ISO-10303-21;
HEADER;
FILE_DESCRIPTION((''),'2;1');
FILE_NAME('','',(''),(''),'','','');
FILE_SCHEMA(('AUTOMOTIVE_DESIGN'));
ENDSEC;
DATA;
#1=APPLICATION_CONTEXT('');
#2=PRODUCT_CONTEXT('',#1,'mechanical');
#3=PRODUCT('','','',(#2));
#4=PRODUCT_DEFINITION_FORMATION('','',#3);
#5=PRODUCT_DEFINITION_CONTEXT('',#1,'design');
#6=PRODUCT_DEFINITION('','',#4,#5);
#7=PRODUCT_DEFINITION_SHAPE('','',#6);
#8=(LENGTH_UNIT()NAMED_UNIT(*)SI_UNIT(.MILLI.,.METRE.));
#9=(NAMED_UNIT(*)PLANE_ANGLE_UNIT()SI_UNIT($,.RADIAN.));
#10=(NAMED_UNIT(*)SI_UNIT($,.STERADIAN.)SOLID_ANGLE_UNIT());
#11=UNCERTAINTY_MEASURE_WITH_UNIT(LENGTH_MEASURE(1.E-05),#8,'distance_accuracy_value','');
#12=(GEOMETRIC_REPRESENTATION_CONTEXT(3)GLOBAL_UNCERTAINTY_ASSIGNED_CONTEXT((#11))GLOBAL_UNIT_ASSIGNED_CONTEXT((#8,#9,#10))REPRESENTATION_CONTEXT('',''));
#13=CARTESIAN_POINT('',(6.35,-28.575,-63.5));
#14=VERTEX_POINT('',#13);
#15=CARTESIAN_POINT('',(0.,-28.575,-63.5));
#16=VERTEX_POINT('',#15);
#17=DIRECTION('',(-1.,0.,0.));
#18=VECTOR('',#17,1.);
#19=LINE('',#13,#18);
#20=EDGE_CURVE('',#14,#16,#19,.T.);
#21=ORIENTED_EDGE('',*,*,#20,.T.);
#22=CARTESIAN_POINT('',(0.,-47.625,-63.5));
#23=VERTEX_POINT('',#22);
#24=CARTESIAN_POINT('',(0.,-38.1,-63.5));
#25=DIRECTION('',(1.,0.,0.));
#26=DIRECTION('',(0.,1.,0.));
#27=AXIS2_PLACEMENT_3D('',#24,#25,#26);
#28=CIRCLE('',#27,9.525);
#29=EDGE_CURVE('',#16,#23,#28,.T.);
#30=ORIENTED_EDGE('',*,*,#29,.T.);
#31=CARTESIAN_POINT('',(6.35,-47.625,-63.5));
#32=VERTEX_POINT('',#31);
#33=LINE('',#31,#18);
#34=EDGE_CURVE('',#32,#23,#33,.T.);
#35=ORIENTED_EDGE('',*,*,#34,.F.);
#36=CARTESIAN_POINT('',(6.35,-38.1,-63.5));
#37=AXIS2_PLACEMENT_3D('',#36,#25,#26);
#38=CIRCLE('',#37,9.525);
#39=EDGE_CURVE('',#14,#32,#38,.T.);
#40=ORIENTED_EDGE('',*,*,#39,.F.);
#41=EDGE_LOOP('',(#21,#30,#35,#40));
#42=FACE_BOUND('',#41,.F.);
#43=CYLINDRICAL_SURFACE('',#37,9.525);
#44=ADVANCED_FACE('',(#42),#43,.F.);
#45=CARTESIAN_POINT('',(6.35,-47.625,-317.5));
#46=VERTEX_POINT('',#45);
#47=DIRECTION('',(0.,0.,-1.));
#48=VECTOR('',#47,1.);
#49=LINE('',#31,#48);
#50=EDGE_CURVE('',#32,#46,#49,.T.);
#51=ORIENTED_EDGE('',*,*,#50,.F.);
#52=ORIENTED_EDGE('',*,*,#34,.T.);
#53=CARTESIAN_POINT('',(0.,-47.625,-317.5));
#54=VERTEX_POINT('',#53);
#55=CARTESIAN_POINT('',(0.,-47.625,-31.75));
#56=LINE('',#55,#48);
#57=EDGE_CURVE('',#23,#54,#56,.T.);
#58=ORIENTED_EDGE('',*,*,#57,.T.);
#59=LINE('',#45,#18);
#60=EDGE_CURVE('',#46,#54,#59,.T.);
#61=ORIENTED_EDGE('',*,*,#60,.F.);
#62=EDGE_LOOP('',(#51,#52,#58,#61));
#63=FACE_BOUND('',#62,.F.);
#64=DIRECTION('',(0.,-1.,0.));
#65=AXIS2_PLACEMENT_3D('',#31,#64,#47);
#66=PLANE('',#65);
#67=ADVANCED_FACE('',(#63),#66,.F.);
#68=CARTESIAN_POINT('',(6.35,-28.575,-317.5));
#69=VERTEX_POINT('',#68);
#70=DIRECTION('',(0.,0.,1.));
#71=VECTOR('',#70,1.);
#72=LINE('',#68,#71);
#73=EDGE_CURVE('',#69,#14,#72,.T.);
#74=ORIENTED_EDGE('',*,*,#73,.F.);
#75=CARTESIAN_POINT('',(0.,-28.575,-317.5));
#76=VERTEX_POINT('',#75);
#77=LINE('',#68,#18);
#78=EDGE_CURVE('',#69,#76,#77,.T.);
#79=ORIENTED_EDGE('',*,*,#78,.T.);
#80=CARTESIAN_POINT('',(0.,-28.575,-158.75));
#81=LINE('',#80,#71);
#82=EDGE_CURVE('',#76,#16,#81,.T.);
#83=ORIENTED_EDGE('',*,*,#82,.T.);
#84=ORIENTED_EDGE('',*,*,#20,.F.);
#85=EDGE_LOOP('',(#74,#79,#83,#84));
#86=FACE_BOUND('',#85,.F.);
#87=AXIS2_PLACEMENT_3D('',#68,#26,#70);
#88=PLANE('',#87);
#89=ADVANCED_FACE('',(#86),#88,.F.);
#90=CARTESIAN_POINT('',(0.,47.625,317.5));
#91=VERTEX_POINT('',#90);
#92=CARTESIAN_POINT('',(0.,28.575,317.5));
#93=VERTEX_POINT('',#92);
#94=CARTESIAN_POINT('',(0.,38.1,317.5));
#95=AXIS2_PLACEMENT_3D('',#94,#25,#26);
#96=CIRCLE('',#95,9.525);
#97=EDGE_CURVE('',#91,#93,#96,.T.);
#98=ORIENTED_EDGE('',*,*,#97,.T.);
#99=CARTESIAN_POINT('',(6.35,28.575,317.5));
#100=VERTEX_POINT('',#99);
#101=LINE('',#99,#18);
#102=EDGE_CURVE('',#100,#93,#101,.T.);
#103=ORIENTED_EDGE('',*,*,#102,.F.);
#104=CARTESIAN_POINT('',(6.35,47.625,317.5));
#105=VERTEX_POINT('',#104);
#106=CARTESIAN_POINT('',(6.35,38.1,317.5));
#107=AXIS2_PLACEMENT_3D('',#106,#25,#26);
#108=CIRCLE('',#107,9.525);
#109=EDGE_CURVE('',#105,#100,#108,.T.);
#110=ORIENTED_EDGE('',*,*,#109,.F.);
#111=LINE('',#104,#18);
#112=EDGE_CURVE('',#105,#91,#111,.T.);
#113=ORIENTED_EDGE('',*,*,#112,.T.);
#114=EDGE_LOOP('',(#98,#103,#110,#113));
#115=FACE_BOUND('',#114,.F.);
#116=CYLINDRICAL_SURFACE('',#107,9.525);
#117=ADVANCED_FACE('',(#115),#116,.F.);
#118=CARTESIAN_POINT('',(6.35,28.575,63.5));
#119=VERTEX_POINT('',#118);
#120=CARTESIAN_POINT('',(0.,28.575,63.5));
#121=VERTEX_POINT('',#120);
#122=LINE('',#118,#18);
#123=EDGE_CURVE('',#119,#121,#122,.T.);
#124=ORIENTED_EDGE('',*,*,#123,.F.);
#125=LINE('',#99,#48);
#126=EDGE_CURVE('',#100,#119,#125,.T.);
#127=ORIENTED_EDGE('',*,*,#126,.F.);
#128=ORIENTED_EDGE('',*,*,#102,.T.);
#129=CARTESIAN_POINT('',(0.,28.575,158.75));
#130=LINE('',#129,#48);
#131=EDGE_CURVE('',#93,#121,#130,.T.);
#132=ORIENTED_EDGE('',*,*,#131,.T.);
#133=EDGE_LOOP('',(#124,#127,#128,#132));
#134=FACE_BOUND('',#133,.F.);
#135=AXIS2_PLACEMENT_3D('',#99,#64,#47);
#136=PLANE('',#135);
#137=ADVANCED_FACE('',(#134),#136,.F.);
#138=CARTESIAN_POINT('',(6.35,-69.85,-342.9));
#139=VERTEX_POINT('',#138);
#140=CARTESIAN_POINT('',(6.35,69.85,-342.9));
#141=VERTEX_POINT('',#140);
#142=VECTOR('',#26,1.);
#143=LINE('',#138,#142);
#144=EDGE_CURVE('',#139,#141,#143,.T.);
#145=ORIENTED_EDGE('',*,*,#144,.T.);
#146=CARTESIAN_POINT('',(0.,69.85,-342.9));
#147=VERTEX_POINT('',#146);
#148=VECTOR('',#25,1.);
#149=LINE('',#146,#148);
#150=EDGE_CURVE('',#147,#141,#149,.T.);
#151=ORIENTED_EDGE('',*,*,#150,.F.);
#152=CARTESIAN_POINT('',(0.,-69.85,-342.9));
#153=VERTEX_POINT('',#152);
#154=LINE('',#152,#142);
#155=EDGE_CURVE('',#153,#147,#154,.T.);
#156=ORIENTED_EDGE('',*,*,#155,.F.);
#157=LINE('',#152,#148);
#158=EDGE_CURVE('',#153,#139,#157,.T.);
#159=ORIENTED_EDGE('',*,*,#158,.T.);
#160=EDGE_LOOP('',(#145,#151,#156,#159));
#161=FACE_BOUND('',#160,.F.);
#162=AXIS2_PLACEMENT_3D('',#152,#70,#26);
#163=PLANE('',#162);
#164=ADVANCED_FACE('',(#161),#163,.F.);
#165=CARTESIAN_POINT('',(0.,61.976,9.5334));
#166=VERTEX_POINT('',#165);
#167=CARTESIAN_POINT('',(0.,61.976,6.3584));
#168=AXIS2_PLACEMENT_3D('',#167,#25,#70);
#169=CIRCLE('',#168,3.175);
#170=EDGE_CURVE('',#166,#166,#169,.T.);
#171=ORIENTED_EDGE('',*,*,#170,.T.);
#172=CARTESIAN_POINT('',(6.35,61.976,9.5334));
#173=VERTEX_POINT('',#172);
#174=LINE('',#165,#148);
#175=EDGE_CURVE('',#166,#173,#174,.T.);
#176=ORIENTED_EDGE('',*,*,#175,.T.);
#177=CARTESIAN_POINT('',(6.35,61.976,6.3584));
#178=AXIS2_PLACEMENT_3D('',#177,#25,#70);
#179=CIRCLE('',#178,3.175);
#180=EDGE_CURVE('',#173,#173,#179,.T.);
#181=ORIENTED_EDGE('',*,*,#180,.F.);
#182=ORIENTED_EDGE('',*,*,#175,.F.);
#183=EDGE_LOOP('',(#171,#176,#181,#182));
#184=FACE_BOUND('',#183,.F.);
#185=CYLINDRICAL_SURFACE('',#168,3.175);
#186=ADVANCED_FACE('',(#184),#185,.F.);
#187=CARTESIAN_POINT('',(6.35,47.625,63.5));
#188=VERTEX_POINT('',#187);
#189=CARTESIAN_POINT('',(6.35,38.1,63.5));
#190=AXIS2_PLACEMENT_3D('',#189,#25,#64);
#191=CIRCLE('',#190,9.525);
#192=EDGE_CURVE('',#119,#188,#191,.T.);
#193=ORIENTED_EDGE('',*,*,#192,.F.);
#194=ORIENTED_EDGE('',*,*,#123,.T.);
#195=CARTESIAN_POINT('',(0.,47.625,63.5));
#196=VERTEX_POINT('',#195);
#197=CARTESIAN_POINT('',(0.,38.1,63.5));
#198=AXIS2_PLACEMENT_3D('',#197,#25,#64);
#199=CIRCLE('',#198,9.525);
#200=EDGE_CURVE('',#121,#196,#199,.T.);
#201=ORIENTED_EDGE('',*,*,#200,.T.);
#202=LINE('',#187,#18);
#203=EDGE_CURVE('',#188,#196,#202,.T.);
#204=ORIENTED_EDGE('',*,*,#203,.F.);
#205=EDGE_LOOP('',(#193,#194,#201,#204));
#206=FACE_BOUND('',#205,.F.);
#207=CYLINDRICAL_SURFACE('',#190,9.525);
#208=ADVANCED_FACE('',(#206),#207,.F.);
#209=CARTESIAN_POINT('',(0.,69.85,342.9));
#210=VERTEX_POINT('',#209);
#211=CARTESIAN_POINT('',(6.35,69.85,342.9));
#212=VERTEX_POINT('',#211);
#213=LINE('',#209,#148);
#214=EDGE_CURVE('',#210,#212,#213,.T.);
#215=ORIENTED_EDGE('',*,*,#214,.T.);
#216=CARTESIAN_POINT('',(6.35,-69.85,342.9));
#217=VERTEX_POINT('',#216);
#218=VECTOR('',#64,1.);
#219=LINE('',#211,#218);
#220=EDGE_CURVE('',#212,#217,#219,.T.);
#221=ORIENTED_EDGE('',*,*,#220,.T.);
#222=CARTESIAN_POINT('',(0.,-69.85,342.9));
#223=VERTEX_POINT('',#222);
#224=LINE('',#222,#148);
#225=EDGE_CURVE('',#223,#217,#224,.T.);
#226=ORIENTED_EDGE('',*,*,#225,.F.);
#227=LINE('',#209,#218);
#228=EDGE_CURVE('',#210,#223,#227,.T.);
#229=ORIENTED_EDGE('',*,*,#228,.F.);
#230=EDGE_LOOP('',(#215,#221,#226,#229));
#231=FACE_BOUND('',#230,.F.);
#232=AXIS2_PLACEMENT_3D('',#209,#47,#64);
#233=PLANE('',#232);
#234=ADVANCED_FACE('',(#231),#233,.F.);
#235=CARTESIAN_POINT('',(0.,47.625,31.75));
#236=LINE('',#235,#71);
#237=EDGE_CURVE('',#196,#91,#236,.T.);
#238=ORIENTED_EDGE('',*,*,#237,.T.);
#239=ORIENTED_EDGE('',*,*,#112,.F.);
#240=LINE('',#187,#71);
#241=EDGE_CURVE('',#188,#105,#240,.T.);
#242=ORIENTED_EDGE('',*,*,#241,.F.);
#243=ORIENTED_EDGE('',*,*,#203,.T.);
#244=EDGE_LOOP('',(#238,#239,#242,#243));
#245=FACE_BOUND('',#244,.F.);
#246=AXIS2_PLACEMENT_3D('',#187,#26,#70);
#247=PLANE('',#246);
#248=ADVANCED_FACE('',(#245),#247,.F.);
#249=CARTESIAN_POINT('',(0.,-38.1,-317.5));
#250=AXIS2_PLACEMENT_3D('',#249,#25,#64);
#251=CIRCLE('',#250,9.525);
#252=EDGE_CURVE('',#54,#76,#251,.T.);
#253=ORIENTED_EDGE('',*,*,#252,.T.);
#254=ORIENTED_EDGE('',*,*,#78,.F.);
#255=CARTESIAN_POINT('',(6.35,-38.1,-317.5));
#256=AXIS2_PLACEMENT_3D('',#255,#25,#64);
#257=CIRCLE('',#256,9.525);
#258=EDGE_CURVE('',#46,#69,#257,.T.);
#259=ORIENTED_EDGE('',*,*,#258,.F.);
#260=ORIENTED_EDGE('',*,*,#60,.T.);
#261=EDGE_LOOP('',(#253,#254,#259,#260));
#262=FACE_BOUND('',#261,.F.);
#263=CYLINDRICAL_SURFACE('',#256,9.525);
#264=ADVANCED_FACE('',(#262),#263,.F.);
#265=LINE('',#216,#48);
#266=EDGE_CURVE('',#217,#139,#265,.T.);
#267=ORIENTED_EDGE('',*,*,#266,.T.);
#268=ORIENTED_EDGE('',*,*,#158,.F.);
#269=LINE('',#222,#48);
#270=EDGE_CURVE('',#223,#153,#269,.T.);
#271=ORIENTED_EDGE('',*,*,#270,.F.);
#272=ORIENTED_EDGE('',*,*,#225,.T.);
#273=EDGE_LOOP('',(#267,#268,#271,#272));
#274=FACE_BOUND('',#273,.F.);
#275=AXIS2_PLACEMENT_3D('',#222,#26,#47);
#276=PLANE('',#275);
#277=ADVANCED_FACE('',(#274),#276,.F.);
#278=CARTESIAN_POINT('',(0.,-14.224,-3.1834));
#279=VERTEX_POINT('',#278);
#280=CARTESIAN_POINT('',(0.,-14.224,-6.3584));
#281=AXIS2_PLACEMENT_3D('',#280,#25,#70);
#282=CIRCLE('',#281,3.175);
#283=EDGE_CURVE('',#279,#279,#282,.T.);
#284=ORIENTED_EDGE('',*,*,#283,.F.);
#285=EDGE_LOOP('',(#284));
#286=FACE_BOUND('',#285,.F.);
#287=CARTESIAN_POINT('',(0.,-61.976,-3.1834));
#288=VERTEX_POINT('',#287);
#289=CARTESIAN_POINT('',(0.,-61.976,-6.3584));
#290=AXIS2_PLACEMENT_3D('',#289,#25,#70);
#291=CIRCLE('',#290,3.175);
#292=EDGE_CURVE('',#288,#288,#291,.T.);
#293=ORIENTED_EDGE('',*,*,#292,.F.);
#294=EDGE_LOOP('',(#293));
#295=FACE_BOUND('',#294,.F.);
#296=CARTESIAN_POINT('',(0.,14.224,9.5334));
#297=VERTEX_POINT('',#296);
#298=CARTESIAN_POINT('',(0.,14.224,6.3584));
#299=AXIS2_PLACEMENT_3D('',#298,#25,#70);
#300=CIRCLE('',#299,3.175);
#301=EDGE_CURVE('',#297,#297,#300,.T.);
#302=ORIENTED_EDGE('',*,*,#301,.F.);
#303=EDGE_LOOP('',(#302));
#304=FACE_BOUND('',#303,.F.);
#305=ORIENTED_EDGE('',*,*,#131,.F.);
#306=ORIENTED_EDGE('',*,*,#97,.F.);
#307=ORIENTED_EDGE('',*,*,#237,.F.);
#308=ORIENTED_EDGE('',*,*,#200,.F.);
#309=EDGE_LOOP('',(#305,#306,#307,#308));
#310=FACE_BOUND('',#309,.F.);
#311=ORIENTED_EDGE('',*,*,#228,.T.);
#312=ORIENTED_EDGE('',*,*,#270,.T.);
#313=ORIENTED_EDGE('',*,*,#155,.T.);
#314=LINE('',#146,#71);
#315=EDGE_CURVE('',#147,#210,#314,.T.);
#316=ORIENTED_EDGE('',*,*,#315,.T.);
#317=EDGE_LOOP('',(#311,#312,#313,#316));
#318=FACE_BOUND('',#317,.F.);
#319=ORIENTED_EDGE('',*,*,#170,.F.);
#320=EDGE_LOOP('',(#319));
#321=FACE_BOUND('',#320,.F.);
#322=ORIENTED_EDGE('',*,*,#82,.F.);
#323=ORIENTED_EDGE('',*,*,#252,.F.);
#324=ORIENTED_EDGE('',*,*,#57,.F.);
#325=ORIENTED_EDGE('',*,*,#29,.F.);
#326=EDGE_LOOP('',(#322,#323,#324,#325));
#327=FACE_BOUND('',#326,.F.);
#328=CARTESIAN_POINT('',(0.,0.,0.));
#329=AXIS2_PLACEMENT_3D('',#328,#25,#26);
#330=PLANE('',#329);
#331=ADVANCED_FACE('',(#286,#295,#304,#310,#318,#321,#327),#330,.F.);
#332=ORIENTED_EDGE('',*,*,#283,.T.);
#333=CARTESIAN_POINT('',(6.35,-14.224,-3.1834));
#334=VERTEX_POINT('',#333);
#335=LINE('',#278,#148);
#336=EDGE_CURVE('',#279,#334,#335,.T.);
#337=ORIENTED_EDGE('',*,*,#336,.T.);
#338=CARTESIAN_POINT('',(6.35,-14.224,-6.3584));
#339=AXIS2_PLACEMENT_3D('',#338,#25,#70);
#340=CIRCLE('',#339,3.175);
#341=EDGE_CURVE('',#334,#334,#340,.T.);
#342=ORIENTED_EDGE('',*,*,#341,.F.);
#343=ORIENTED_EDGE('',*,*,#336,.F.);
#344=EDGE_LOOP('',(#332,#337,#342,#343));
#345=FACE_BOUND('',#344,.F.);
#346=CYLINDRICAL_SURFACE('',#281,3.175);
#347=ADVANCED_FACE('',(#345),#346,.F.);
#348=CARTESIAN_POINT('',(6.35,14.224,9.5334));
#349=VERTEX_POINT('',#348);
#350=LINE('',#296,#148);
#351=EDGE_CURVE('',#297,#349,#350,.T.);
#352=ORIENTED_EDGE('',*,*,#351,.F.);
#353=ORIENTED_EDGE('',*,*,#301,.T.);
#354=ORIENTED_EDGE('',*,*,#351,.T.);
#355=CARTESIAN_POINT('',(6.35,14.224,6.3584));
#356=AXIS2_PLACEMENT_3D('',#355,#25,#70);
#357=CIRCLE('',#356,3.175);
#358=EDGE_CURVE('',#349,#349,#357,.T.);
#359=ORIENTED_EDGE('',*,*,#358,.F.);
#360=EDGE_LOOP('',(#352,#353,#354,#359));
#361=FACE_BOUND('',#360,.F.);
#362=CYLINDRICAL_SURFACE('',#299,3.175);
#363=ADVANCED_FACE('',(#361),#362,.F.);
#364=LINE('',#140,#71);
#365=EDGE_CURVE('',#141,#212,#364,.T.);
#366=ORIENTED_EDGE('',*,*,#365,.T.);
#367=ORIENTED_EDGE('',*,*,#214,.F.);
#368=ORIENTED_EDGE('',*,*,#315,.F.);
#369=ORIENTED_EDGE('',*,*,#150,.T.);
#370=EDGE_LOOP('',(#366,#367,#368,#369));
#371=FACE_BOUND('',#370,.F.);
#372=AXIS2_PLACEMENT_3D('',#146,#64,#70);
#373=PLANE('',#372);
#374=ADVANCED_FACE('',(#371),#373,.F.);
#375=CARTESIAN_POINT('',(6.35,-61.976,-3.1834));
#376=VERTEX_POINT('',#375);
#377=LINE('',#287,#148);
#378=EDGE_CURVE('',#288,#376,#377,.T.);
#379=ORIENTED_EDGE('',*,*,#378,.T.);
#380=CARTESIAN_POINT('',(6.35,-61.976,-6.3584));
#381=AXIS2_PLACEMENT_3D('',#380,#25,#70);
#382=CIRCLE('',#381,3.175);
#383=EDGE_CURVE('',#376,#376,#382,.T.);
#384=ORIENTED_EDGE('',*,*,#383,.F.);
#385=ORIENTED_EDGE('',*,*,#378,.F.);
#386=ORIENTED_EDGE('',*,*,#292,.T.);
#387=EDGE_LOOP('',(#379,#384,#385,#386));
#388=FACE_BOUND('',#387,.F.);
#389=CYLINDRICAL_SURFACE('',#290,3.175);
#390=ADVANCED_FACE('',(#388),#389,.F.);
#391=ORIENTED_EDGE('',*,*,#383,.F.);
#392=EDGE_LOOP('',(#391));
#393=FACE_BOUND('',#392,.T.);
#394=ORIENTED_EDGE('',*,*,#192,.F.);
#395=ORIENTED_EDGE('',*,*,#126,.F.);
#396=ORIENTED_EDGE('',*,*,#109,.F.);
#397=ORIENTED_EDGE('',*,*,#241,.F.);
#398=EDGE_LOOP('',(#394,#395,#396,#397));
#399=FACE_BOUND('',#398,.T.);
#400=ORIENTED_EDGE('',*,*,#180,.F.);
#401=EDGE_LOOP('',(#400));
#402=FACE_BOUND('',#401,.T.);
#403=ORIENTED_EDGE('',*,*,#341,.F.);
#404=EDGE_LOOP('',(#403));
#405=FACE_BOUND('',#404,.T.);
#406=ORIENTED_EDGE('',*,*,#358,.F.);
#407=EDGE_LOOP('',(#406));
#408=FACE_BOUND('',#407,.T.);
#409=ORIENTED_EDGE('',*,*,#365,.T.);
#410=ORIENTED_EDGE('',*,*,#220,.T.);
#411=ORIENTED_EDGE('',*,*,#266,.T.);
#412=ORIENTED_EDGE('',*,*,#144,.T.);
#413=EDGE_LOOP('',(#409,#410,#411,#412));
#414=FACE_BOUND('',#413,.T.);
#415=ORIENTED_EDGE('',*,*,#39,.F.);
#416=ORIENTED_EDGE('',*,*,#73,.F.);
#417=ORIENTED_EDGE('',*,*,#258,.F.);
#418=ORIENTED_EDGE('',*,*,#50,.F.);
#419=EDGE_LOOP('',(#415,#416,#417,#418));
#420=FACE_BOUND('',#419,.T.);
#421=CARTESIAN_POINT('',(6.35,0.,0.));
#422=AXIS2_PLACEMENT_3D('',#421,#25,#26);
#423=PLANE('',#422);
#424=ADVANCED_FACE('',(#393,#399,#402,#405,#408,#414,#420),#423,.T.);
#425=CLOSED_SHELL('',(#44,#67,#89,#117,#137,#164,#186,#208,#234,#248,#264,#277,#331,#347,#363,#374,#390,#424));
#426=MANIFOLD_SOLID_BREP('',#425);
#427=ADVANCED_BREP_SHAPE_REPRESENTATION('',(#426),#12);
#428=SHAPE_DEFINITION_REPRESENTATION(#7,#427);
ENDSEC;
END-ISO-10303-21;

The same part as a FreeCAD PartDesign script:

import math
import FreeCAD as App
import Part
import Sketcher
Q = App.Units.Quantity

doc = App.newDocument("Part")
body = doc.addObject("PartDesign::Body", "Body")

# Sketch on YZ plane
sketch1 = body.newObject("Sketcher::SketchObject", "Sketch")
sketch1.AttachmentSupport = (doc.getObject("YZ_Plane"), [""])
sketch1.MapMode = "FlatFace"
sketch1.addGeometry([
    Part.LineSegment(App.Vector(70, 343, 0), App.Vector(-70, 343, 0)),
    Part.LineSegment(App.Vector(-70, 343, 0), App.Vector(-70, -343, 0)),
    Part.LineSegment(App.Vector(-70, -343, 0), App.Vector(70, -343, 0)),
    Part.LineSegment(App.Vector(70, -343, 0), App.Vector(70, 343, 0)),
], False)
sketch1.addConstraint([
    Sketcher.Constraint("Coincident", 0, 2, 1, 1),
    Sketcher.Constraint("Coincident", 1, 2, 2, 1),
    Sketcher.Constraint("Coincident", 2, 2, 3, 1),
    Sketcher.Constraint("Coincident", 3, 2, 0, 1),
    Sketcher.Constraint("Horizontal", 0),
    Sketcher.Constraint("Vertical", 1),
    Sketcher.Constraint("Horizontal", 2),
    Sketcher.Constraint("Vertical", 3),
    Sketcher.Constraint("Symmetric", 0, 2, 2, 2, -1, 1),
    Sketcher.Constraint("DistanceY", 1, 2, 1, 1, Q("27 in")),
    Sketcher.Constraint("DistanceX", 0, 2, 0, 1, Q("5.5 in")),
])
pad1 = body.newObject("PartDesign::Pad", "Pad")
pad1.Profile = sketch1
pad1.Length = Q("0.25 in")

# Sketch on YZ plane
sketch2 = body.newObject("Sketcher::SketchObject", "Sketch001")
sketch2.AttachmentSupport = (doc.getObject("YZ_Plane"), [""])
sketch2.MapMode = "FlatFace"
sketch2.AttachmentOffset = App.Placement(App.Vector(0, 0, 0.25 * 25.4), App.Rotation())
sketch2.addGeometry([
    Part.ArcOfCircle(Part.Circle(App.Vector(38, 318, 0), App.Vector(0, 0, 1), 10), math.radians(0), math.radians(180)),  # 0
    Part.LineSegment(App.Vector(29, 318, 0), App.Vector(29, 64, 0)),  # 1
    Part.ArcOfCircle(Part.Circle(App.Vector(38, 64, 0), App.Vector(0, 0, 1), 10), math.radians(180), math.radians(360)),  # 2
    Part.LineSegment(App.Vector(48, 64, 0), App.Vector(48, 318, 0)),  # 3
    Part.ArcOfCircle(Part.Circle(App.Vector(-38, -64, 0), App.Vector(0, 0, 1), 10), math.radians(0), math.radians(180)),  # 4
    Part.LineSegment(App.Vector(-48, -64, 0), App.Vector(-48, -318, 0)),  # 5
    Part.ArcOfCircle(Part.Circle(App.Vector(-38, -318, 0), App.Vector(0, 0, 1), 10), math.radians(180), math.radians(360)),  # 6
    Part.LineSegment(App.Vector(-29, -318, 0), App.Vector(-29, -64, 0)),  # 7
], False)
sketch2.addConstraint([
    Sketcher.Constraint("Tangent", 0, 2, 1, 1),
    Sketcher.Constraint("Tangent", 1, 2, 2, 1),
    Sketcher.Constraint("Tangent", 2, 2, 3, 1),
    Sketcher.Constraint("Tangent", 3, 2, 0, 1),
    Sketcher.Constraint("Tangent", 4, 2, 5, 1),
    Sketcher.Constraint("Tangent", 5, 2, 6, 1),
    Sketcher.Constraint("Tangent", 6, 2, 7, 1),
    Sketcher.Constraint("Tangent", 7, 2, 4, 1),
    Sketcher.Constraint("Vertical", 1),
    Sketcher.Constraint("Vertical", 3),
    Sketcher.Constraint("Vertical", 5),
    Sketcher.Constraint("Vertical", 7),
    Sketcher.Constraint("Equal", 2, 4),
    Sketcher.Constraint("Symmetric", 2, 3, 4, 3, -1, 1),
    Sketcher.Constraint("Equal", 3, 5),
    Sketcher.Constraint("DistanceY", 1, 2, 1, 1, Q("10 in")),
    Sketcher.Constraint("Radius", 0, Q("0.375 in")),
    Sketcher.Constraint("DistanceX", 4, 3, 2, 3, Q("3 in")),
    Sketcher.Constraint("DistanceY", 4, 3, 2, 3, Q("5 in")),
])
pocket1 = body.newObject("PartDesign::Pocket", "Pocket")
pocket1.Profile = sketch2
pocket1.Type = "ThroughAll"

# Sketch on YZ plane
sketch3 = body.newObject("Sketcher::SketchObject", "Sketch002")
sketch3.AttachmentSupport = (doc.getObject("YZ_Plane"), [""])
sketch3.MapMode = "FlatFace"
sketch3.addGeometry([
    Part.Circle(App.Vector(62, 6.4, 0), App.Vector(0, 0, 1), 3.2),  # 0
    Part.Circle(App.Vector(-62, -6.4, 0), App.Vector(0, 0, 1), 3.2),  # 1
    Part.Circle(App.Vector(237.8, 80.6, 0), App.Vector(0, 0, 1), 3.2),  # 2
    Part.Circle(App.Vector(-92.9, 47.9, 0), App.Vector(0, 0, 1), 3.2),  # 3
    Part.Circle(App.Vector(14.2, 6.4, 0), App.Vector(0, 0, 1), 3.2),  # 4
    Part.Circle(App.Vector(-14.2, -6.4, 0), App.Vector(0, 0, 1), 3.2),  # 5
], False)
sketch3.addConstraint([
    Sketcher.Constraint("Equal", 0, 1),
    Sketcher.Constraint("Equal", 1, 2),
    Sketcher.Constraint("Equal", 2, 3),
    Sketcher.Constraint("Equal", 3, 4),
    Sketcher.Constraint("Equal", 4, 5),
    Sketcher.Constraint("Symmetric", 0, 3, 1, 3, -1, 1),
    Sketcher.Constraint("Symmetric", 4, 3, 5, 3, -1, 1),
    Sketcher.Constraint("Horizontal", 0, 3, 4, 3),
    Sketcher.Constraint("Diameter", 0, Q("0.25 in")),
    Sketcher.Constraint("DistanceX", 1, 3, 4, 3, Q("3 in")),
    Sketcher.Constraint("DistanceX", -1, 1, 0, 3, Q("2.44 in")),
    Sketcher.Constraint("DistanceX", 3, 3, 2, 3, Q("13.021 in")),
    Sketcher.Constraint("DistanceY", 0, 3, 2, 3, Q("2.9231 in")),
    Sketcher.Constraint("DistanceY", 1, 3, 3, 3, Q("2.1356 in")),
    Sketcher.Constraint("DistanceY", -1, 1, 0, 3, 6.3584),
    Sketcher.Constraint("DistanceX", -1, 1, 2, 3, 237.827),
])
doc.recompute()
hole = body.newObject("PartDesign::Hole", "Hole")
hole.Profile = sketch3
hole.ThreadType = "None"
hole.Diameter = Q("0.25 in")
hole.DepthType = "ThroughAll"
hole.Reversed = True

doc.recompute()
